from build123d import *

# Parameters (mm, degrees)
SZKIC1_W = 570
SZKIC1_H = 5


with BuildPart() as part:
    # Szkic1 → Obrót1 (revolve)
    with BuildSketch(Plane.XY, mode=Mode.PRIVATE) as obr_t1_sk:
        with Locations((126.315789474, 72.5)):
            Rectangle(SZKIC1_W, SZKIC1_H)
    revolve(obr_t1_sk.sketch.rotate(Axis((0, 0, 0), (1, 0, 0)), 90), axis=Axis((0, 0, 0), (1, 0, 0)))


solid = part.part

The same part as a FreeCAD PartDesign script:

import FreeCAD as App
import Part
import Sketcher
Q = App.Units.Quantity

doc = App.newDocument("Part")
body = doc.addObject("PartDesign::Body", "Body")

sketch1 = body.newObject("Sketcher::SketchObject", "Sketch")
sketch1.AttachmentSupport = (doc.getObject("XY_Plane"), [""])
sketch1.MapMode = "FlatFace"
sketch1.addGeometry(Part.LineSegment(App.Vector(-158.684211, 75, 0), App.Vector(-158.684211, 70, 0)), False)
sketch1.addGeometry(Part.LineSegment(App.Vector(-158.684211, 70, 0), App.Vector(411.315789, 70, 0)), False)
sketch1.addGeometry(Part.LineSegment(App.Vector(411.315789, 70, 0), App.Vector(411.315789, 75, 0)), False)
sketch1.addGeometry(Part.LineSegment(App.Vector(411.315789, 75, 0), App.Vector(-158.684211, 75, 0)), False)
sketch1.addConstraint(Sketcher.Constraint("Coincident", 0, 2, 1, 1))
sketch1.addConstraint(Sketcher.Constraint("Coincident", 1, 2, 2, 1))
sketch1.addConstraint(Sketcher.Constraint("Coincident", 2, 2, 3, 1))
sketch1.addConstraint(Sketcher.Constraint("Coincident", 3, 2, 0, 1))
sketch1.addConstraint(Sketcher.Constraint("Vertical", 0))
sketch1.addConstraint(Sketcher.Constraint("Horizontal", 1))
sketch1.addConstraint(Sketcher.Constraint("Vertical", 2))
sketch1.addConstraint(Sketcher.Constraint("Horizontal", 3))
sketch1.addConstraint(Sketcher.Constraint("DistanceX", 1, 1, 1, 2, Q("570 mm")))
sketch1.addConstraint(Sketcher.Constraint("DistanceY", 0, 2, 0, 1, Q("5 mm")))
sketch1.addConstraint(Sketcher.Constraint("DistanceY", -1, 1, 0, 2, Q("70 mm")))
sketch1.addConstraint(Sketcher.Constraint("DistanceX", 0, 2, -1, 1, Q("158.684211 mm")))
revolution = body.newObject("PartDesign::Revolution", "Revolution")
revolution.Profile = sketch1
revolution.ReferenceAxis = (sketch1, ["H_Axis"])
revolution.Angle = 360

doc.recompute()
